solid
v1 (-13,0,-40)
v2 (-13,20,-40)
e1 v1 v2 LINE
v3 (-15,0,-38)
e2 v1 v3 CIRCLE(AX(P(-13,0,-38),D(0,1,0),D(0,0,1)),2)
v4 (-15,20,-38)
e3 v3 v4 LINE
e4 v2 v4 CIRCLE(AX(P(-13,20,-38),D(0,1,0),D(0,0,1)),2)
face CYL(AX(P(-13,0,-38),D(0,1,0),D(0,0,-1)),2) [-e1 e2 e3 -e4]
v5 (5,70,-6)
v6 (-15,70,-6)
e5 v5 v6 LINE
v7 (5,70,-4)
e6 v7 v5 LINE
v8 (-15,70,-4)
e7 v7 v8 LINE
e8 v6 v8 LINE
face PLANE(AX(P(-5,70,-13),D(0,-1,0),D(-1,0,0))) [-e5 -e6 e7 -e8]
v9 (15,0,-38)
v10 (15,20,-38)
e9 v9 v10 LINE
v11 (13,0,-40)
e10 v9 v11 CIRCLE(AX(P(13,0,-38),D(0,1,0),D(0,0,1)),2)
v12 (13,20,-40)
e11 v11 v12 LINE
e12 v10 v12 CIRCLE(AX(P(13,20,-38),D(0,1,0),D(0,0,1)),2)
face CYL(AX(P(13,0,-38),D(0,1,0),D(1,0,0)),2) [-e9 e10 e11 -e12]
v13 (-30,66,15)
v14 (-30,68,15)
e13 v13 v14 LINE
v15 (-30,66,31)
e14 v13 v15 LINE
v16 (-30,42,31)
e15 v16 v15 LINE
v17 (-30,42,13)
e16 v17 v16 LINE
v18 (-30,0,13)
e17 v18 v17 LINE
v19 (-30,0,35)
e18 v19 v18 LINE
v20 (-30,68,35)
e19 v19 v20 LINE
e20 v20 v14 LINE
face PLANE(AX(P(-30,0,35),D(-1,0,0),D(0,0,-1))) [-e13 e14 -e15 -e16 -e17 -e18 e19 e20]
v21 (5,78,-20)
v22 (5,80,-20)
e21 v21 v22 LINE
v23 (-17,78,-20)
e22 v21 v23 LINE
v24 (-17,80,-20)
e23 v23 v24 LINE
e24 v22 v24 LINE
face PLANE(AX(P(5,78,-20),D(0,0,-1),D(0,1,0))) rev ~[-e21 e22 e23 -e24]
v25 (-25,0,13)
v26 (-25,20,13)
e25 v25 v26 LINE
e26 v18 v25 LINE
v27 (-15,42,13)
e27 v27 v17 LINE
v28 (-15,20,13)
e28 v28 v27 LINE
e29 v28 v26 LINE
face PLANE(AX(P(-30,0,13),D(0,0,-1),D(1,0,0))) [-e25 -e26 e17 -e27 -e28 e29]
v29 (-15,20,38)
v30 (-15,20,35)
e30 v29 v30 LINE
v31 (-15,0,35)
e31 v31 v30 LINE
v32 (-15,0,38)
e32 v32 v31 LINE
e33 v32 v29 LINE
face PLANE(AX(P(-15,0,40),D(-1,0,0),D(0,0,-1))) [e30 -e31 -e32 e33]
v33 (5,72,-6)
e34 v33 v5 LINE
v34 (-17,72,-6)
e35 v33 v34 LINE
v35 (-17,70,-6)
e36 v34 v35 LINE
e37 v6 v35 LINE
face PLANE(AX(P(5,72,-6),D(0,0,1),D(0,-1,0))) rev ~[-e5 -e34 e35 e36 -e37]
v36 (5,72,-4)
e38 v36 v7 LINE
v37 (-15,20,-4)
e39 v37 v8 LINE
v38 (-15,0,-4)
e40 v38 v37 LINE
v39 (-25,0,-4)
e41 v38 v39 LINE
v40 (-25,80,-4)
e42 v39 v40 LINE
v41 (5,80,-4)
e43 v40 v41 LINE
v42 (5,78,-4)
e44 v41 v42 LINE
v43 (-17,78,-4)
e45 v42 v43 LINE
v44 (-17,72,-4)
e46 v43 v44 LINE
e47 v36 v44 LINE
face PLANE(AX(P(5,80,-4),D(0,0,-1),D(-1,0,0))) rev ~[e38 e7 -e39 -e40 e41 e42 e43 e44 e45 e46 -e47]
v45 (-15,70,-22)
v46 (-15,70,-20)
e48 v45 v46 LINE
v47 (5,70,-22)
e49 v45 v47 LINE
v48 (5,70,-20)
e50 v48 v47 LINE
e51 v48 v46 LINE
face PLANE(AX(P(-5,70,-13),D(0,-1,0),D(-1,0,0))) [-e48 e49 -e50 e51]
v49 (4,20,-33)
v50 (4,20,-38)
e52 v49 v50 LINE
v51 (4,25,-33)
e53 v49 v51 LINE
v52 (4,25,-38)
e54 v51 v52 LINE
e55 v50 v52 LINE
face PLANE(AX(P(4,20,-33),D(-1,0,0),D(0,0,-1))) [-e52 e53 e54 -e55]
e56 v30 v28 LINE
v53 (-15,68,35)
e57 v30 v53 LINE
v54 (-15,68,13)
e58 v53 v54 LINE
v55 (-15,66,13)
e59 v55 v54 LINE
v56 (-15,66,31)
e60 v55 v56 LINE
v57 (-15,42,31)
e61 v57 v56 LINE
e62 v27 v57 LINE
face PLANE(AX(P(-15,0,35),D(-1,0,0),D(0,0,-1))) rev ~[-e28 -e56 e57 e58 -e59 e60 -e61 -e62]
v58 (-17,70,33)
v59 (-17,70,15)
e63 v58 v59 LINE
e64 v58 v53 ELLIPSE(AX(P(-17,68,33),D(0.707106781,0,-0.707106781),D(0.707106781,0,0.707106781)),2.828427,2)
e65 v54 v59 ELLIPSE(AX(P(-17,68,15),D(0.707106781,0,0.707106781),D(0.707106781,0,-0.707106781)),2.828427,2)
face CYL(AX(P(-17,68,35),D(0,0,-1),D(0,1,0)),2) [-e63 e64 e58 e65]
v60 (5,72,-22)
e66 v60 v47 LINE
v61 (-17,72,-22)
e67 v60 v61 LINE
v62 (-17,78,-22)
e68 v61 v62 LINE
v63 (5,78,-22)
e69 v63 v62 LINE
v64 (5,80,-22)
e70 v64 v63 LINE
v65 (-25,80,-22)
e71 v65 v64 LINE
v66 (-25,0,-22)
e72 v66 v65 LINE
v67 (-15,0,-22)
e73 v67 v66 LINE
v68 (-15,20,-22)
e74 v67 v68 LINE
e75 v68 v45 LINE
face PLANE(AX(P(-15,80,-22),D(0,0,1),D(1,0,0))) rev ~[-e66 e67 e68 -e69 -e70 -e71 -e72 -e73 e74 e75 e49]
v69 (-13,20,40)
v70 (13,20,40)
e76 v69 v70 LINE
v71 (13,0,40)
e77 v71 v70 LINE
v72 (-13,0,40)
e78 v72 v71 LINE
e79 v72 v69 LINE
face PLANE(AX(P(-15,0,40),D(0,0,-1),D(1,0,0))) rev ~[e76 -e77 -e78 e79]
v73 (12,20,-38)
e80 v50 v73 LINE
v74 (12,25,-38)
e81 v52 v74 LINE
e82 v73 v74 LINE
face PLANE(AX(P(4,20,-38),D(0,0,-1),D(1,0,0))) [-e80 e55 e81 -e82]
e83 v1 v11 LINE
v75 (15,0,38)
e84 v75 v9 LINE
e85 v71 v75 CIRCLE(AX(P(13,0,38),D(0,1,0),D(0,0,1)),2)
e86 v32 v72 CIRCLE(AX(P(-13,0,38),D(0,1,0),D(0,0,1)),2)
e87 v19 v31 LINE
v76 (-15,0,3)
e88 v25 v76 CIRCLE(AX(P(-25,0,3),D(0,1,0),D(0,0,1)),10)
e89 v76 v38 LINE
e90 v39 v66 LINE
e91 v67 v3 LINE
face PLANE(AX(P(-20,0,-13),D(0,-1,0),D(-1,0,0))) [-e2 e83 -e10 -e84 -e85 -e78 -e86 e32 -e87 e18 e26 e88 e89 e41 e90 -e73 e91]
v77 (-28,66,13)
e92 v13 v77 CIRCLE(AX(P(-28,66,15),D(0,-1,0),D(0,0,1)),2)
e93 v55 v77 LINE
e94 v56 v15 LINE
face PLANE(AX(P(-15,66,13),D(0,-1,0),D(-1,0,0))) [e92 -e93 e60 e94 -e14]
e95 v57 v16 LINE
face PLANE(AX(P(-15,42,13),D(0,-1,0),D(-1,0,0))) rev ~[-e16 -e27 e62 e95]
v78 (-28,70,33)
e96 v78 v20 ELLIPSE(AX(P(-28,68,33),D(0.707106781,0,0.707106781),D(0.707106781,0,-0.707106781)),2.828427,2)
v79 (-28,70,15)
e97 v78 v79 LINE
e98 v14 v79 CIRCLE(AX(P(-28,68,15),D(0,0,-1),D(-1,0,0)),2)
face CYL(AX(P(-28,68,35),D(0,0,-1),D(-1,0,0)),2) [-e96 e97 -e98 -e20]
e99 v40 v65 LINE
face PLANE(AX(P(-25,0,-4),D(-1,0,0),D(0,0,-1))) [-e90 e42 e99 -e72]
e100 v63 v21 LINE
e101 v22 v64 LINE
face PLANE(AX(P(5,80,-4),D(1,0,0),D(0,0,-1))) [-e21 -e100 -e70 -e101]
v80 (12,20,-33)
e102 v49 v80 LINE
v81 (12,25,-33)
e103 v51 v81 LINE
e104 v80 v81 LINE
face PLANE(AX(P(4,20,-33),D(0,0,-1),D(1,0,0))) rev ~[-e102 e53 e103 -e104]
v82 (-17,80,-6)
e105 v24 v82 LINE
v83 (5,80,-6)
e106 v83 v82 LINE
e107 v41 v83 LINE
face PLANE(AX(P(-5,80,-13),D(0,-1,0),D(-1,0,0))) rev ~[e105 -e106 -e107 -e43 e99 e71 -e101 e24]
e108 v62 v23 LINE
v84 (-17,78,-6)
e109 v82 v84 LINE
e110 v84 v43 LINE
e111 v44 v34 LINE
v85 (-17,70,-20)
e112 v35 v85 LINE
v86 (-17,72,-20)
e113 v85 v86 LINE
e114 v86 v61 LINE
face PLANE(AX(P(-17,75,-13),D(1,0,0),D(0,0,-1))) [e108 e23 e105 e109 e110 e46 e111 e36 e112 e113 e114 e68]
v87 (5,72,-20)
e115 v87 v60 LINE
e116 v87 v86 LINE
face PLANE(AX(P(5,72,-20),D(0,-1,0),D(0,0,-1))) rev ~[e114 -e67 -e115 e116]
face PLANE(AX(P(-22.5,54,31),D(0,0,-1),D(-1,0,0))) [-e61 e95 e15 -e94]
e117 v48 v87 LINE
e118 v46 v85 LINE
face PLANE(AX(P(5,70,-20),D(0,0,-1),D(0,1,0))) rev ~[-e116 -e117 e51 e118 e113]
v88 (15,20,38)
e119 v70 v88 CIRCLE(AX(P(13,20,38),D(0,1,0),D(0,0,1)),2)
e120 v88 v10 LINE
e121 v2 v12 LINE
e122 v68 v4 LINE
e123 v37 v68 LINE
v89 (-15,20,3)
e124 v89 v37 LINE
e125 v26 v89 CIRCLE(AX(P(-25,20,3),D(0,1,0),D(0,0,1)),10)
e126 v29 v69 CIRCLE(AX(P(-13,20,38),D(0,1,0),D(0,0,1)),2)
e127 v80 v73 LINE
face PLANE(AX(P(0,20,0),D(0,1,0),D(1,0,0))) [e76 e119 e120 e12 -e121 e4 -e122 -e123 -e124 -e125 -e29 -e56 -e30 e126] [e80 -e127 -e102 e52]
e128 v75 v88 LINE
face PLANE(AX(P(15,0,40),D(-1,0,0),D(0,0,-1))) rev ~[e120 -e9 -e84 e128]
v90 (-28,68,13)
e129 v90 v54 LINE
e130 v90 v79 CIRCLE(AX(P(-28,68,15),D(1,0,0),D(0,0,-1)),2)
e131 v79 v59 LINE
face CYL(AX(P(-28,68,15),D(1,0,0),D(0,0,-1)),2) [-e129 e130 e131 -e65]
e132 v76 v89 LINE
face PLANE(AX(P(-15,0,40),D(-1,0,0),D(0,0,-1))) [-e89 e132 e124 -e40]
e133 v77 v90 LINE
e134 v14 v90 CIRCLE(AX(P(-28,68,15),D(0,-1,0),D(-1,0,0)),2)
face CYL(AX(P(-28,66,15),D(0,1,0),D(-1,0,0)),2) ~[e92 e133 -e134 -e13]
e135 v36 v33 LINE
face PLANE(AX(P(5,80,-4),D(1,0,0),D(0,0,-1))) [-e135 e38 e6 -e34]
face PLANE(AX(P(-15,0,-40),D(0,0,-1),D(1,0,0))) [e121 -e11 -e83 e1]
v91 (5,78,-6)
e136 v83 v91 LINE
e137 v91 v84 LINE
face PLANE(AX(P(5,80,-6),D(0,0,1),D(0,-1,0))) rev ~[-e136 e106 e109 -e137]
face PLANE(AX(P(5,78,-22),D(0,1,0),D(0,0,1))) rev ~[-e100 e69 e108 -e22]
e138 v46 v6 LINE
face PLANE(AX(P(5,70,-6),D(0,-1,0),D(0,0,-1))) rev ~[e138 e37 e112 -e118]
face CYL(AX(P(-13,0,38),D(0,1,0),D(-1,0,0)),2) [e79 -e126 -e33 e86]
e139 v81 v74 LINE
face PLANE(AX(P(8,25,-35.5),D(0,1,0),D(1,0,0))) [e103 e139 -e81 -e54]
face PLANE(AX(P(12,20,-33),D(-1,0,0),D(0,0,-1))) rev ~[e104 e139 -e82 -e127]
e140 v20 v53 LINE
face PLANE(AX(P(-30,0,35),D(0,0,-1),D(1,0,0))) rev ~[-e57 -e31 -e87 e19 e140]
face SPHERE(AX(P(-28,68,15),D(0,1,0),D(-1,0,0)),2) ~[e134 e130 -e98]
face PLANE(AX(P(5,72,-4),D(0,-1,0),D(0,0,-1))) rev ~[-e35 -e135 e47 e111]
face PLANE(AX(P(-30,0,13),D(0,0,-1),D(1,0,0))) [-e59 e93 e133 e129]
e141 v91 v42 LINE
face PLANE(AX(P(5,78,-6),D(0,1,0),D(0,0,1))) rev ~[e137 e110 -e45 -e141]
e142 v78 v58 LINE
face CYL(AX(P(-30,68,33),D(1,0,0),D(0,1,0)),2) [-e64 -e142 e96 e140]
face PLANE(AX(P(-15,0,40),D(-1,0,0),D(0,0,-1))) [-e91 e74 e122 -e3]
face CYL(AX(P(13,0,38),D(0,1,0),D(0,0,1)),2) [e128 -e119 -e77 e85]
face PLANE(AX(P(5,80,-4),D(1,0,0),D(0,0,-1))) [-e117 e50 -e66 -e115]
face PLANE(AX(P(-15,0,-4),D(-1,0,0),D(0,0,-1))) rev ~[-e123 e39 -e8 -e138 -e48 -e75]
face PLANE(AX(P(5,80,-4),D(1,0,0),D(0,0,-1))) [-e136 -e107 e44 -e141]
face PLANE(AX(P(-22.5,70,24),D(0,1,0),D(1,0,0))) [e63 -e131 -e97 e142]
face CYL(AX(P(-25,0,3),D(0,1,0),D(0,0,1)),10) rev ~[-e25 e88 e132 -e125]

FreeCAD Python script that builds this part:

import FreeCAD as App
import Part
import Sketcher

V = App.Vector
Q = App.Units.Quantity


def edges_at(feature, points):
    """Names of the edges that pass closest to the given points."""
    edges = feature.Shape.Edges
    near = lambda p: min(range(len(edges)), key=lambda i: edges[i].distToShape(Part.Vertex(*p))[0])
    return sorted({f"Edge{near(p) + 1}" for p in points})

doc = App.newDocument("Part")
body = doc.addObject("PartDesign::Body", "Body")

# Sketch on XZ plane
sketch1 = body.newObject("Sketcher::SketchObject", "Sketch")
sketch1.AttachmentSupport = (doc.getObject("XZ_Plane"), [""])
sketch1.MapMode = "FlatFace"
sketch1.addGeometry(Part.LineSegment(V(-15, -40, 0), V(-15, 40, 0)), False)
sketch1.addGeometry(Part.LineSegment(V(-15, 40, 0), V(15, 40, 0)), False)
sketch1.addGeometry(Part.LineSegment(V(15, 40, 0), V(15, -40, 0)), False)
sketch1.addGeometry(Part.LineSegment(V(15, -40, 0), V(-15, -40, 0)), False)
sketch1.addConstraint(Sketcher.Constraint("Coincident", 0, 2, 1, 1))
sketch1.addConstraint(Sketcher.Constraint("Coincident", 1, 2, 2, 1))
sketch1.addConstraint(Sketcher.Constraint("Coincident", 2, 2, 3, 1))
sketch1.addConstraint(Sketcher.Constraint("Coincident", 3, 2, 0, 1))
sketch1.addConstraint(Sketcher.Constraint("Vertical", 0))
sketch1.addConstraint(Sketcher.Constraint("Horizontal", 1))
sketch1.addConstraint(Sketcher.Constraint("Vertical", 2))
sketch1.addConstraint(Sketcher.Constraint("Horizontal", 3))
sketch1.addConstraint(Sketcher.Constraint("Symmetric", 0, 2, 2, 2, -1, 1))
sketch1.addConstraint(Sketcher.Constraint("DistanceX", 1, 1, 1, 2, Q("30 mm")))
sketch1.addConstraint(Sketcher.Constraint("DistanceY", 0, 1, 0, 2, Q("80 mm")))
pad1 = body.newObject("PartDesign::Pad", "Pad")
pad1.Profile = sketch1
pad1.Length = 20
pad1.Reversed = True

# Sketch on XZ plane
sketch2 = body.newObject("Sketcher::SketchObject", "Sketch001")
sketch2.AttachmentSupport = (doc.getObject("XZ_Plane"), [""])
sketch2.MapMode = "FlatFace"
sketch2.AttachmentOffset = App.Placement(V(0, 0, -20), App.Rotation())
sketch2.addGeometry(Part.LineSegment(V(4, -38, 0), V(4, -33, 0)), False)
sketch2.addGeometry(Part.LineSegment(V(4, -33, 0), V(12, -33, 0)), False)
sketch2.addGeometry(Part.LineSegment(V(12, -33, 0), V(12, -38, 0)), False)
sketch2.addGeometry(Part.LineSegment(V(12, -38, 0), V(4, -38, 0)), False)
sketch2.addConstraint(Sketcher.Constraint("Coincident", 0, 2, 1, 1))
sketch2.addConstraint(Sketcher.Constraint("Coincident", 1, 2, 2, 1))
sketch2.addConstraint(Sketcher.Constraint("Coincident", 2, 2, 3, 1))
sketch2.addConstraint(Sketcher.Constraint("Coincident", 3, 2, 0, 1))
sketch2.addConstraint(Sketcher.Constraint("Vertical", 0))
sketch2.addConstraint(Sketcher.Constraint("Horizontal", 1))
sketch2.addConstraint(Sketcher.Constraint("Vertical", 2))
sketch2.addConstraint(Sketcher.Constraint("Horizontal", 3))
sketch2.addConstraint(Sketcher.Constraint("DistanceX", 1, 1, 1, 2, Q("8 mm")))
sketch2.addConstraint(Sketcher.Constraint("DistanceY", 0, 1, 0, 2, Q("5 mm")))
sketch2.addConstraint(Sketcher.Constraint("DistanceX", -1, 1, 0, 2, Q("4 mm")))
sketch2.addConstraint(Sketcher.Constraint("DistanceY", 0, 2, -1, 1, Q("33 mm")))
pad2 = body.newObject("PartDesign::Pad", "Pad001")
pad2.Profile = sketch2
pad2.Length = 5
pad2.Reversed = True

# Sketch on XZ plane
sketch3 = body.newObject("Sketcher::SketchObject", "Sketch002")
sketch3.AttachmentSupport = (doc.getObject("XZ_Plane"), [""])
sketch3.MapMode = "FlatFace"
sketch3.addGeometry(Part.LineSegment(V(-30, 13, 0), V(-30, 35, 0)), False)
sketch3.addGeometry(Part.LineSegment(V(-30, 35, 0), V(-15, 35, 0)), False)
sketch3.addGeometry(Part.LineSegment(V(-15, 35, 0), V(-15, 13, 0)), False)
sketch3.addGeometry(Part.LineSegment(V(-15, 13, 0), V(-30, 13, 0)), False)
sketch3.addConstraint(Sketcher.Constraint("Coincident", 0, 2, 1, 1))
sketch3.addConstraint(Sketcher.Constraint("Coincident", 1, 2, 2, 1))
sketch3.addConstraint(Sketcher.Constraint("Coincident", 2, 2, 3, 1))
sketch3.addConstraint(Sketcher.Constraint("Coincident", 3, 2, 0, 1))
sketch3.addConstraint(Sketcher.Constraint("Vertical", 0))
sketch3.addConstraint(Sketcher.Constraint("Horizontal", 1))
sketch3.addConstraint(Sketcher.Constraint("Vertical", 2))
sketch3.addConstraint(Sketcher.Constraint("Horizontal", 3))
sketch3.addConstraint(Sketcher.Constraint("DistanceX", 1, 1, 1, 2, Q("15 mm")))
sketch3.addConstraint(Sketcher.Constraint("DistanceY", 0, 1, 0, 2, Q("22 mm")))
sketch3.addConstraint(Sketcher.Constraint("DistanceX", 0, 2, -1, 1, Q("30 mm")))
sketch3.addConstraint(Sketcher.Constraint("DistanceY", -1, 1, 0, 2, Q("35 mm")))
pad3 = body.newObject("PartDesign::Pad", "Pad002")
pad3.Profile = sketch3
pad3.Length = 70
pad3.Reversed = True

# Sketch on XY plane
sketch4 = body.newObject("Sketcher::SketchObject", "Sketch003")
sketch4.AttachmentSupport = (doc.getObject("XY_Plane"), [""])
sketch4.MapMode = "FlatFace"
sketch4.AttachmentOffset = App.Placement(V(0, 0, 13), App.Rotation())
sketch4.addGeometry(Part.LineSegment(V(-15, 66, 0), V(-15, 42, 0)), False)
sketch4.addGeometry(Part.LineSegment(V(-15, 42, 0), V(-30, 42, 0)), False)
sketch4.addGeometry(Part.LineSegment(V(-30, 42, 0), V(-30, 66, 0)), False)
sketch4.addGeometry(Part.LineSegment(V(-30, 66, 0), V(-15, 66, 0)), False)
sketch4.addConstraint(Sketcher.Constraint("Coincident", 0, 2, 1, 1))
sketch4.addConstraint(Sketcher.Constraint("Coincident", 1, 2, 2, 1))
sketch4.addConstraint(Sketcher.Constraint("Coincident", 2, 2, 3, 1))
sketch4.addConstraint(Sketcher.Constraint("Coincident", 3, 2, 0, 1))
sketch4.addConstraint(Sketcher.Constraint("Vertical", 0))
sketch4.addConstraint(Sketcher.Constraint("Horizontal", 1))
sketch4.addConstraint(Sketcher.Constraint("Vertical", 2))
sketch4.addConstraint(Sketcher.Constraint("Horizontal", 3))
sketch4.addConstraint(Sketcher.Constraint("DistanceX", 1, 2, 1, 1, Q("15 mm")))
sketch4.addConstraint(Sketcher.Constraint("DistanceY", 0, 2, 0, 1, Q("24 mm")))
sketch4.addConstraint(Sketcher.Constraint("DistanceX", 0, 2, -1, 1, Q("15 mm")))
sketch4.addConstraint(Sketcher.Constraint("DistanceY", -1, 1, 0, 2, Q("42 mm")))
pocket1 = body.newObject("PartDesign::Pocket", "Pocket")
pocket1.Profile = sketch4
pocket1.Length = 18
pocket1.Reversed = True
doc.recompute()

fillet = body.newObject("PartDesign::Fillet", "Fillet")
fillet.Base = (pocket1, edges_at(pocket1, [
    (-15, 10, -40),
    (15, 10, -40),
    (15, 10, 40),
    (-15, 10, 40),
]))
fillet.Radius = 2
doc.recompute()

fillet2 = body.newObject("PartDesign::Fillet", "Fillet001")
fillet2.Base = (fillet, edges_at(fillet, [(-15, 10, 13)]))
fillet2.Radius = 10
doc.recompute()

fillet3 = body.newObject("PartDesign::Fillet", "Fillet002")
fillet3.Base = (fillet2, edges_at(fillet2, [(-30, 68, 13)]))
fillet3.Radius = 2
doc.recompute()

fillet4 = body.newObject("PartDesign::Fillet", "Fillet003")
fillet4.Base = (fillet3, edges_at(fillet3, [
    (-22.5, 70, 35),
    (-30, 70, 25),
    (-15, 70, 24),
    (-21.5, 70, 13),
    (-29.414, 70, 13.586),
]))
fillet4.Radius = 2

# Sketch on XZ plane
sketch5 = body.newObject("Sketcher::SketchObject", "Sketch004")
sketch5.AttachmentSupport = (doc.getObject("XZ_Plane"), [""])
sketch5.MapMode = "FlatFace"
sketch5.addGeometry(Part.LineSegment(V(-15, -22, 0), V(-15, -4, 0)), False)
sketch5.addGeometry(Part.LineSegment(V(-15, -4, 0), V(-25, -4, 0)), False)
sketch5.addGeometry(Part.LineSegment(V(-25, -4, 0), V(-25, -22, 0)), False)
sketch5.addGeometry(Part.LineSegment(V(-25, -22, 0), V(-15, -22, 0)), False)
sketch5.addConstraint(Sketcher.Constraint("Coincident", 0, 2, 1, 1))
sketch5.addConstraint(Sketcher.Constraint("Coincident", 1, 2, 2, 1))
sketch5.addConstraint(Sketcher.Constraint("Coincident", 2, 2, 3, 1))
sketch5.addConstraint(Sketcher.Constraint("Coincident", 3, 2, 0, 1))
sketch5.addConstraint(Sketcher.Constraint("Vertical", 0))
sketch5.addConstraint(Sketcher.Constraint("Horizontal", 1))
sketch5.addConstraint(Sketcher.Constraint("Vertical", 2))
sketch5.addConstraint(Sketcher.Constraint("Horizontal", 3))
sketch5.addConstraint(Sketcher.Constraint("DistanceX", 1, 2, 1, 1, Q("10 mm")))
sketch5.addConstraint(Sketcher.Constraint("DistanceY", 0, 1, 0, 2, Q("18 mm")))
sketch5.addConstraint(Sketcher.Constraint("DistanceX", 0, 2, -1, 1, Q("15 mm")))
sketch5.addConstraint(Sketcher.Constraint("DistanceY", 0, 2, -1, 1, Q("4 mm")))
pad4 = body.newObject("PartDesign::Pad", "Pad003")
pad4.Profile = sketch5
pad4.Length = 80
pad4.Reversed = True

# Sketch on XZ plane
sketch6 = body.newObject("Sketcher::SketchObject", "Sketch005")
sketch6.AttachmentSupport = (doc.getObject("XZ_Plane"), [""])
sketch6.MapMode = "FlatFace"
sketch6.AttachmentOffset = App.Placement(V(0, 0, -80), App.Rotation())
sketch6.addGeometry(Part.LineSegment(V(5, -22, 0), V(-15, -22, 0)), False)
sketch6.addGeometry(Part.LineSegment(V(-15, -22, 0), V(-15, -4, 0)), False)
sketch6.addGeometry(Part.LineSegment(V(-15, -4, 0), V(5, -4, 0)), False)
sketch6.addGeometry(Part.LineSegment(V(5, -4, 0), V(5, -22, 0)), False)
sketch6.addConstraint(Sketcher.Constraint("Coincident", 0, 2, 1, 1))
sketch6.addConstraint(Sketcher.Constraint("Coincident", 1, 2, 2, 1))
sketch6.addConstraint(Sketcher.Constraint("Coincident", 2, 2, 3, 1))
sketch6.addConstraint(Sketcher.Constraint("Coincident", 3, 2, 0, 1))
sketch6.addConstraint(Sketcher.Constraint("Horizontal", 0))
sketch6.addConstraint(Sketcher.Constraint("Vertical", 1))
sketch6.addConstraint(Sketcher.Constraint("Horizontal", 2))
sketch6.addConstraint(Sketcher.Constraint("Vertical", 3))
sketch6.addConstraint(Sketcher.Constraint("DistanceX", 0, 2, 0, 1, Q("20 mm")))
sketch6.addConstraint(Sketcher.Constraint("DistanceY", 1, 1, 1, 2, Q("18 mm")))
sketch6.addConstraint(Sketcher.Constraint("DistanceX", 0, 2, -1, 1, Q("15 mm")))
sketch6.addConstraint(Sketcher.Constraint("DistanceY", 0, 2, -1, 1, Q("22 mm")))
pad5 = body.newObject("PartDesign::Pad", "Pad004")
pad5.Profile = sketch6
pad5.Length = 10

# Sketch on YZ plane
sketch7 = body.newObject("Sketcher::SketchObject", "Sketch006")
sketch7.AttachmentSupport = (doc.getObject("YZ_Plane"), [""])
sketch7.MapMode = "FlatFace"
sketch7.AttachmentOffset = App.Placement(V(0, 0, 5), App.Rotation())
sketch7.addGeometry(Part.LineSegment(V(80, -20, 0), V(80, -6, 0)), False)
sketch7.addGeometry(Part.LineSegment(V(80, -6, 0), V(78, -6, 0)), False)
sketch7.addGeometry(Part.LineSegment(V(78, -6, 0), V(78, -4, 0)), False)
sketch7.addGeometry(Part.LineSegment(V(78, -4, 0), V(72, -4, 0)), False)
sketch7.addGeometry(Part.LineSegment(V(72, -4, 0), V(72, -6, 0)), False)
sketch7.addGeometry(Part.LineSegment(V(72, -6, 0), V(70, -6, 0)), False)
sketch7.addGeometry(Part.LineSegment(V(70, -6, 0), V(70, -20, 0)), False)
sketch7.addGeometry(Part.LineSegment(V(70, -20, 0), V(72, -20, 0)), False)
sketch7.addGeometry(Part.LineSegment(V(72, -20, 0), V(72, -22, 0)), False)
sketch7.addGeometry(Part.LineSegment(V(72, -22, 0), V(78, -22, 0)), False)
sketch7.addGeometry(Part.LineSegment(V(78, -22, 0), V(78, -20, 0)), False)
sketch7.addGeometry(Part.LineSegment(V(78, -20, 0), V(80, -20, 0)), False)
sketch7.addConstraint(Sketcher.Constraint("Coincident", 0, 2, 1, 1))
sketch7.addConstraint(Sketcher.Constraint("Coincident", 1, 2, 2, 1))
sketch7.addConstraint(Sketcher.Constraint("Coincident", 2, 2, 3, 1))
sketch7.addConstraint(Sketcher.Constraint("Coincident", 3, 2, 4, 1))
sketch7.addConstraint(Sketcher.Constraint("Coincident", 4, 2, 5, 1))
sketch7.addConstraint(Sketcher.Constraint("Coincident", 5, 2, 6, 1))
sketch7.addConstraint(Sketcher.Constraint("Coincident", 6, 2, 7, 1))
sketch7.addConstraint(Sketcher.Constraint("Coincident", 7, 2, 8, 1))
sketch7.addConstraint(Sketcher.Constraint("Coincident", 8, 2, 9, 1))
sketch7.addConstraint(Sketcher.Constraint("Coincident", 9, 2, 10, 1))
sketch7.addConstraint(Sketcher.Constraint("Coincident", 10, 2, 11, 1))
sketch7.addConstraint(Sketcher.Constraint("Coincident", 11, 2, 0, 1))
sketch7.addConstraint(Sketcher.Constraint("Vertical", 0))
sketch7.addConstraint(Sketcher.Constraint("Horizontal", 1))
sketch7.addConstraint(Sketcher.Constraint("Vertical", 2))
sketch7.addConstraint(Sketcher.Constraint("Horizontal", 3))
sketch7.addConstraint(Sketcher.Constraint("Vertical", 4))
sketch7.addConstraint(Sketcher.Constraint("Horizontal", 5))
sketch7.addConstraint(Sketcher.Constraint("Vertical", 6))
sketch7.addConstraint(Sketcher.Constraint("Horizontal", 7))
sketch7.addConstraint(Sketcher.Constraint("Vertical", 8))
sketch7.addConstraint(Sketcher.Constraint("Horizontal", 9))
sketch7.addConstraint(Sketcher.Constraint("Vertical", 10))
sketch7.addConstraint(Sketcher.Constraint("Horizontal", 11))
sketch7.addConstraint(Sketcher.Constraint("Horizontal", 1, 2, 4, 2))
sketch7.addConstraint(Sketcher.Constraint("Horizontal", 7, 2, 10, 2))
sketch7.addConstraint(Sketcher.Constraint("Vertical", 4, 2, 7, 2))
sketch7.addConstraint(Sketcher.Constraint("Vertical", 2, 2, 9, 2))
sketch7.addConstraint(Sketcher.Constraint("Equal", 1, 5))
sketch7.addConstraint(Sketcher.Constraint("Equal", 11, 2))
sketch7.addConstraint(Sketcher.Constraint("Equal", 4, 8))
sketch7.addConstraint(Sketcher.Constraint("DistanceX", 1, 2, 1, 1, Q("2 mm")))
sketch7.addConstraint(Sketcher.Constraint("DistanceX", 3, 2, 3, 1, Q("6 mm")))
sketch7.addConstraint(Sketcher.Constraint("DistanceY", 0, 1, 0, 2, Q("14 mm")))
sketch7.addConstraint(Sketcher.Constraint("DistanceX", -1, 1, 0, 2, Q("80 mm")))
sketch7.addConstraint(Sketcher.Constraint("DistanceY", 0, 2, -1, 1, Q("6 mm")))
pocket2 = body.newObject("PartDesign::Pocket", "Pocket001")
pocket2.Profile = sketch7
pocket2.Length = 22

doc.recompute()
